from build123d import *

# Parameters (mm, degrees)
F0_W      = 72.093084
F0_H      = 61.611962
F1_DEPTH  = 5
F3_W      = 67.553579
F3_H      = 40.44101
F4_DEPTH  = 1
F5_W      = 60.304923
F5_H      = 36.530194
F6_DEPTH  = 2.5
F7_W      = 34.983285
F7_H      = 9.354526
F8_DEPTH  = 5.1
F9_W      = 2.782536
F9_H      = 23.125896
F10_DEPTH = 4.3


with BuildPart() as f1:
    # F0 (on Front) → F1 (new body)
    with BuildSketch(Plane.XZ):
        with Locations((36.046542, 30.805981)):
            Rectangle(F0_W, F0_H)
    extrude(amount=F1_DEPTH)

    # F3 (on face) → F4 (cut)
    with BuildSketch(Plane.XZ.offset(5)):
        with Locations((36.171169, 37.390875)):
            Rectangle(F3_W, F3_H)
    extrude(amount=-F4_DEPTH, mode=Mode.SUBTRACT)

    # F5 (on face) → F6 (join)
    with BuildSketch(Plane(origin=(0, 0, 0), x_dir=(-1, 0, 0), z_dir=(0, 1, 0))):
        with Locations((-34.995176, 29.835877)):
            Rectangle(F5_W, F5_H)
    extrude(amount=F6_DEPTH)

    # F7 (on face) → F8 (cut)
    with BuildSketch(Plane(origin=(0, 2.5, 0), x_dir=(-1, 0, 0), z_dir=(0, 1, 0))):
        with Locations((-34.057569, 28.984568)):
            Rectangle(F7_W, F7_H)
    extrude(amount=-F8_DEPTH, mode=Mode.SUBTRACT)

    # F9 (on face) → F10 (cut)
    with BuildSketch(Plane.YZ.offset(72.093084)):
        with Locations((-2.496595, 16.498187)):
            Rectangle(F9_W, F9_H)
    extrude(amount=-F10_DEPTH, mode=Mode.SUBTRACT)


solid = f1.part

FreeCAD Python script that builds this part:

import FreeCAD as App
import Part
import Sketcher


def add_polygon(sketch, points):
    """Adds a closed chain of lines whose ends are joined by coincident constraints."""
    first, n = sketch.GeometryCount, len(points)
    for a, b in zip(points, points[1:] + points[:1]):
        sketch.addGeometry(Part.LineSegment(App.Vector(*a, 0), App.Vector(*b, 0)), False)
    for i in range(n):
        sketch.addConstraint(Sketcher.Constraint("Coincident", first + i, 2, first + (i + 1) % n, 1))

doc = App.newDocument("Part")
body = doc.addObject("PartDesign::Body", "Body")

sketch1 = body.newObject("Sketcher::SketchObject", "Sketch")
sketch1.AttachmentSupport = (doc.getObject("XZ_Plane"), [""])
sketch1.MapMode = "FlatFace"
add_polygon(sketch1, [(0, 62), (0, 0), (72, 0), (72, 62)])
sketch1.addConstraint([
    Sketcher.Constraint("Vertical", 0),
    Sketcher.Constraint("Horizontal", 1),
    Sketcher.Constraint("Vertical", 2),
    Sketcher.Constraint("Horizontal", 3),
    Sketcher.Constraint("Coincident", 0, 2, -1, 1),
    Sketcher.Constraint("DistanceY", 0, 2, 0, 1, 61.611962),
    Sketcher.Constraint("DistanceX", 1, 1, 1, 2, 72.093084),
])
pad1 = body.newObject("PartDesign::Pad", "Pad")
pad1.Profile = sketch1
pad1.Length = 5

sketch2 = body.newObject("Sketcher::SketchObject", "Sketch001")
sketch2.AttachmentSupport = (doc.getObject("XZ_Plane"), [""])
sketch2.MapMode = "FlatFace"
sketch2.AttachmentOffset = App.Placement(App.Vector(0, 0, 5), App.Rotation())
add_polygon(sketch2, [(2, 58), (2, 17), (70, 17), (70, 58)])
sketch2.addConstraint([
    Sketcher.Constraint("Vertical", 0),
    Sketcher.Constraint("Horizontal", 1),
    Sketcher.Constraint("Vertical", 2),
    Sketcher.Constraint("Horizontal", 3),
    Sketcher.Constraint("DistanceX", 1, 1, 1, 2, 67.553579),
    Sketcher.Constraint("DistanceY", 0, 2, 0, 1, 40.44101),
    Sketcher.Constraint("DistanceX", -1, 1, 0, 2, 2.394379),
    Sketcher.Constraint("DistanceY", -1, 1, 0, 2, 17.17037),
])
pocket1 = body.newObject("PartDesign::Pocket", "Pocket")
pocket1.Profile = sketch2
pocket1.Length = 1

sketch3 = body.newObject("Sketcher::SketchObject", "Sketch002")
sketch3.AttachmentSupport = (doc.getObject("XZ_Plane"), [""])
sketch3.MapMode = "FlatFace"
add_polygon(sketch3, [(65, 48), (65, 12), (5, 12), (5, 48)])
sketch3.addConstraint([
    Sketcher.Constraint("Vertical", 0),
    Sketcher.Constraint("Horizontal", 1),
    Sketcher.Constraint("Vertical", 2),
    Sketcher.Constraint("Horizontal", 3),
    Sketcher.Constraint("DistanceX", 1, 2, 1, 1, 60.304923),
    Sketcher.Constraint("DistanceY", 0, 2, 0, 1, 36.530194),
    Sketcher.Constraint("DistanceY", -1, 1, 0, 2, 11.57078),
    Sketcher.Constraint("DistanceX", -1, 1, 0, 2, 65.147638),
])
pad2 = body.newObject("PartDesign::Pad", "Pad001")
pad2.Profile = sketch3
pad2.Length = 2.5
pad2.Reversed = True

sketch4 = body.newObject("Sketcher::SketchObject", "Sketch003")
sketch4.AttachmentSupport = (doc.getObject("XZ_Plane"), [""])
sketch4.MapMode = "FlatFace"
sketch4.AttachmentOffset = App.Placement(App.Vector(0, 0, -2.5), App.Rotation())
add_polygon(sketch4, [(52, 34), (52, 24), (17, 24), (17, 34)])
sketch4.addConstraint([
    Sketcher.Constraint("Vertical", 0),
    Sketcher.Constraint("Horizontal", 1),
    Sketcher.Constraint("Vertical", 2),
    Sketcher.Constraint("Horizontal", 3),
    Sketcher.Constraint("DistanceX", 1, 2, 1, 1, 34.983285),
    Sketcher.Constraint("DistanceY", 0, 2, 0, 1, 9.354526),
    Sketcher.Constraint("DistanceX", -1, 1, 0, 2, 51.549211),
    Sketcher.Constraint("DistanceY", -1, 1, 2, 2, 33.661831),
])
pocket2 = body.newObject("PartDesign::Pocket", "Pocket001")
pocket2.Profile = sketch4
pocket2.Length = 5.1
pocket2.Reversed = True

sketch5 = body.newObject("Sketcher::SketchObject", "Sketch004")
sketch5.AttachmentSupport = (doc.getObject("YZ_Plane"), [""])
sketch5.MapMode = "FlatFace"
sketch5.AttachmentOffset = App.Placement(App.Vector(0, 0, 72.093084), App.Rotation())
add_polygon(sketch5, [(-3.9, 28.1), (-3.9, 4.9), (-1.1, 4.9), (-1.1, 28.1)])
sketch5.addConstraint([
    Sketcher.Constraint("Vertical", 0),
    Sketcher.Constraint("Horizontal", 1),
    Sketcher.Constraint("Vertical", 2),
    Sketcher.Constraint("Horizontal", 3),
    Sketcher.Constraint("DistanceX", 1, 1, 1, 2, 2.782536),
    Sketcher.Constraint("DistanceY", 0, 2, 0, 1, 23.125896),
    Sketcher.Constraint("DistanceY", -1, 1, 0, 2, 4.935239),
    Sketcher.Constraint("DistanceX", 0, 2, -1, 1, 3.887863),
])
pocket3 = body.newObject("PartDesign::Pocket", "Pocket002")
pocket3.Profile = sketch5
pocket3.Length = 4.3

doc.recompute()
